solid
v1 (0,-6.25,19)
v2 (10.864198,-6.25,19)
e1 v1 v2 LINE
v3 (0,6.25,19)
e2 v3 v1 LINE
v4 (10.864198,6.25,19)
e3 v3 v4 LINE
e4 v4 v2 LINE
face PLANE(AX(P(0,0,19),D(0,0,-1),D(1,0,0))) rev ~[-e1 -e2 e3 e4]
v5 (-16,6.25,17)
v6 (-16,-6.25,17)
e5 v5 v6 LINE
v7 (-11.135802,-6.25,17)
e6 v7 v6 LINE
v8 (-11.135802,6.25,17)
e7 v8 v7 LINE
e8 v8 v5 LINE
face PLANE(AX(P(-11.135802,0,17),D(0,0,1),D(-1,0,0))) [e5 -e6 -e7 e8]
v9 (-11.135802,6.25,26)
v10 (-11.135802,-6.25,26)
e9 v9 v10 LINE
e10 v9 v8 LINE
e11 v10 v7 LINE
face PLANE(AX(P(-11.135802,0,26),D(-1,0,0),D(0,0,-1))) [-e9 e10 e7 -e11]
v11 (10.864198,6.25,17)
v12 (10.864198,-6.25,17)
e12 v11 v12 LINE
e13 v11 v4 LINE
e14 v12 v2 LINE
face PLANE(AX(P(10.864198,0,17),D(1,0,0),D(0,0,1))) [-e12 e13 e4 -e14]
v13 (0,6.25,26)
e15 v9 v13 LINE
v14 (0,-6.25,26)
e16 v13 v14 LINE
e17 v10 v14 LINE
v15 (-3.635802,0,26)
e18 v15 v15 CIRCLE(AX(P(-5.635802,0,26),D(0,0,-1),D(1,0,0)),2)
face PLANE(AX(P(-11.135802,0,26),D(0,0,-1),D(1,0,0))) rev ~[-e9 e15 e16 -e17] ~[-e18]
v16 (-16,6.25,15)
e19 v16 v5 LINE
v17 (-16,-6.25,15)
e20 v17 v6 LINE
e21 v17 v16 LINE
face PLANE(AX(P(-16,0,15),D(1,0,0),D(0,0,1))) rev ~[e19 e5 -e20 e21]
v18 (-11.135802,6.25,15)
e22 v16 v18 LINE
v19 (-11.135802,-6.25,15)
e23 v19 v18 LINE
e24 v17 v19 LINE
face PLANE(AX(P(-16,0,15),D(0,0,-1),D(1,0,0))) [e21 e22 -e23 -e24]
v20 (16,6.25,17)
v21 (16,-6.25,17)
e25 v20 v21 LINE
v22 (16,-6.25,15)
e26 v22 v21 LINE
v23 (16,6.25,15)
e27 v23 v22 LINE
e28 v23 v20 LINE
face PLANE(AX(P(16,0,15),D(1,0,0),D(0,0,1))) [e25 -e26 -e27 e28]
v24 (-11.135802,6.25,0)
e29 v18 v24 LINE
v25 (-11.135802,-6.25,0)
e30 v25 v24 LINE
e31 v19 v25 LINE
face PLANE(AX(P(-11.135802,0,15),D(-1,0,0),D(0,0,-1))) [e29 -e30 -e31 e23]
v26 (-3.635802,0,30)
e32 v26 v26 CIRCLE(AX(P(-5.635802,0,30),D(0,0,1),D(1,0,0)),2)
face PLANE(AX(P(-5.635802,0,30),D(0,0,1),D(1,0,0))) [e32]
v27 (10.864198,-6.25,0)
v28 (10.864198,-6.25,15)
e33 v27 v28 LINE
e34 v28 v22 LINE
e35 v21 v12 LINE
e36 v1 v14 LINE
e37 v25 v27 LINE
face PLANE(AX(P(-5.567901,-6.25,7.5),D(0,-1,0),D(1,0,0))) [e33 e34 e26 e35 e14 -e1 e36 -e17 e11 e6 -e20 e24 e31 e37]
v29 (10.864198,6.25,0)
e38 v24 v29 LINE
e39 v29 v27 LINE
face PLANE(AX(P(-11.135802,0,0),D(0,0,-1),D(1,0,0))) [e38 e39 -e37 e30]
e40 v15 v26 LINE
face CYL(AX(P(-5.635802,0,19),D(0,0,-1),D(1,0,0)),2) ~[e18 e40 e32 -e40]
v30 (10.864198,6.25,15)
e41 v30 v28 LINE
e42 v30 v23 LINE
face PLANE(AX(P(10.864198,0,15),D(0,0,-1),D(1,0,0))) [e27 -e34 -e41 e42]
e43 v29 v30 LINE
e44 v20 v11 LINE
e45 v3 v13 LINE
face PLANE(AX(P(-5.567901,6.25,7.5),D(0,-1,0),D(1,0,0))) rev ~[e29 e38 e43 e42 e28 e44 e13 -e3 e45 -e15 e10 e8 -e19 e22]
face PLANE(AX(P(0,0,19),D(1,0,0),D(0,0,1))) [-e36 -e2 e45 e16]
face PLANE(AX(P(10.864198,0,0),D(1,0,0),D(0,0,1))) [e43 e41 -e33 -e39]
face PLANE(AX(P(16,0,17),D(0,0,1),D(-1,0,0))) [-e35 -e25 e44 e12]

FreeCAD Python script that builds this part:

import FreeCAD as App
import Part
import Sketcher
Q = App.Units.Quantity

doc = App.newDocument("Part")
body = doc.addObject("PartDesign::Body", "Body")

# Sketch on XZ plane
sketch1 = body.newObject("Sketcher::SketchObject", "Sketch")
sketch1.AttachmentSupport = (doc.getObject("XZ_Plane"), [""])
sketch1.MapMode = "FlatFace"
sketch1.addGeometry([
    Part.LineSegment(App.Vector(-11.135802, 0, 0), App.Vector(10.864198, 0, 0)),  # 0
    Part.LineSegment(App.Vector(10.864198, 0, 0), App.Vector(10.864198, 15, 0)),  # 1
    Part.LineSegment(App.Vector(10.864198, 15, 0), App.Vector(16, 15, 0)),  # 2
    Part.LineSegment(App.Vector(16, 15, 0), App.Vector(16, 17, 0)),  # 3
    Part.LineSegment(App.Vector(16, 17, 0), App.Vector(10.864198, 17, 0)),  # 4
    Part.LineSegment(App.Vector(10.864198, 17, 0), App.Vector(10.864198, 19, 0)),  # 5
    Part.LineSegment(App.Vector(10.864198, 19, 0), App.Vector(0, 19, 0)),  # 6
    Part.LineSegment(App.Vector(0, 19, 0), App.Vector(0, 26, 0)),  # 7
    Part.LineSegment(App.Vector(0, 26, 0), App.Vector(-11.135802, 26, 0)),  # 8
    Part.LineSegment(App.Vector(-11.135802, 26, 0), App.Vector(-11.135802, 17, 0)),  # 9
    Part.LineSegment(App.Vector(-11.135802, 17, 0), App.Vector(-16, 17, 0)),  # 10
    Part.LineSegment(App.Vector(-16, 17, 0), App.Vector(-16, 15, 0)),  # 11
    Part.LineSegment(App.Vector(-16, 15, 0), App.Vector(-11.135802, 15, 0)),  # 12
    Part.LineSegment(App.Vector(-11.135802, 15, 0), App.Vector(-11.135802, 0, 0)),  # 13
], False)
sketch1.addConstraint([
    Sketcher.Constraint("Coincident", 0, 2, 1, 1),
    Sketcher.Constraint("Coincident", 1, 2, 2, 1),
    Sketcher.Constraint("Coincident", 2, 2, 3, 1),
    Sketcher.Constraint("Coincident", 3, 2, 4, 1),
    Sketcher.Constraint("Coincident", 4, 2, 5, 1),
    Sketcher.Constraint("Coincident", 5, 2, 6, 1),
    Sketcher.Constraint("Coincident", 6, 2, 7, 1),
    Sketcher.Constraint("Coincident", 7, 2, 8, 1),
    Sketcher.Constraint("Coincident", 8, 2, 9, 1),
    Sketcher.Constraint("Coincident", 9, 2, 10, 1),
    Sketcher.Constraint("Coincident", 10, 2, 11, 1),
    Sketcher.Constraint("Coincident", 11, 2, 12, 1),
    Sketcher.Constraint("Coincident", 12, 2, 13, 1),
    Sketcher.Constraint("Coincident", 13, 2, 0, 1),
    Sketcher.Constraint("Horizontal", 0),
    Sketcher.Constraint("Vertical", 1),
    Sketcher.Constraint("Horizontal", 2),
    Sketcher.Constraint("Vertical", 3),
    Sketcher.Constraint("Horizontal", 4),
    Sketcher.Constraint("Vertical", 5),
    Sketcher.Constraint("Horizontal", 6),
    Sketcher.Constraint("Vertical", 7),
    Sketcher.Constraint("Horizontal", 8),
    Sketcher.Constraint("Vertical", 9),
    Sketcher.Constraint("Horizontal", 10),
    Sketcher.Constraint("Vertical", 11),
    Sketcher.Constraint("Horizontal", 12),
    Sketcher.Constraint("Vertical", 13),
    Sketcher.Constraint("Symmetric", 3, 2, 10, 2, -2),
    Sketcher.Constraint("PointOnObject", 0, 2, -1),
    Sketcher.Constraint("PointOnObject", 6, 2, -2),
    Sketcher.Constraint("Horizontal", 2, 2, 11, 2),
    Sketcher.Constraint("Vertical", 1, 2, 4, 2),
    Sketcher.Constraint("Vertical", 9, 2, 12, 2),
    Sketcher.Constraint("Equal", 3, 5),
    Sketcher.Constraint("DistanceX", 0, 1, 0, 2, Q("22 mm")),
    Sketcher.Constraint("DistanceY", 1, 1, 1, 2, Q("15 mm")),
    Sketcher.Constraint("DistanceY", 3, 1, 3, 2, Q("2 mm")),
    Sketcher.Constraint("DistanceY", 7, 1, 7, 2, Q("7 mm")),
    Sketcher.Constraint("DistanceX", -1, 1, 2, 2, Q("16 mm")),
    Sketcher.Constraint("DistanceX", 2, 1, 2, 2, Q("5.135802 mm")),
])
pad1 = body.newObject("PartDesign::Pad", "Pad")
pad1.Profile = sketch1
pad1.Length = 12.5
pad1.Midplane = True

# Sketch on XY plane
sketch2 = body.newObject("Sketcher::SketchObject", "Sketch001")
sketch2.AttachmentSupport = (doc.getObject("XY_Plane"), [""])
sketch2.MapMode = "FlatFace"
sketch2.AttachmentOffset = App.Placement(App.Vector(0, 0, 19), App.Rotation())
sketch2.addGeometry(Part.Circle(App.Vector(-5.635802, 0, 0), App.Vector(0, 0, 1), 2), False)
sketch2.addConstraint([
    Sketcher.Constraint("PointOnObject", 0, 3, -1),
    Sketcher.Constraint("Diameter", 0, Q("4 mm")),
    Sketcher.Constraint("DistanceX", 0, 3, -1, 1, Q("5.635802 mm")),
])
pad2 = body.newObject("PartDesign::Pad", "Pad001")
pad2.Profile = sketch2
pad2.Length = 11

doc.recompute()
